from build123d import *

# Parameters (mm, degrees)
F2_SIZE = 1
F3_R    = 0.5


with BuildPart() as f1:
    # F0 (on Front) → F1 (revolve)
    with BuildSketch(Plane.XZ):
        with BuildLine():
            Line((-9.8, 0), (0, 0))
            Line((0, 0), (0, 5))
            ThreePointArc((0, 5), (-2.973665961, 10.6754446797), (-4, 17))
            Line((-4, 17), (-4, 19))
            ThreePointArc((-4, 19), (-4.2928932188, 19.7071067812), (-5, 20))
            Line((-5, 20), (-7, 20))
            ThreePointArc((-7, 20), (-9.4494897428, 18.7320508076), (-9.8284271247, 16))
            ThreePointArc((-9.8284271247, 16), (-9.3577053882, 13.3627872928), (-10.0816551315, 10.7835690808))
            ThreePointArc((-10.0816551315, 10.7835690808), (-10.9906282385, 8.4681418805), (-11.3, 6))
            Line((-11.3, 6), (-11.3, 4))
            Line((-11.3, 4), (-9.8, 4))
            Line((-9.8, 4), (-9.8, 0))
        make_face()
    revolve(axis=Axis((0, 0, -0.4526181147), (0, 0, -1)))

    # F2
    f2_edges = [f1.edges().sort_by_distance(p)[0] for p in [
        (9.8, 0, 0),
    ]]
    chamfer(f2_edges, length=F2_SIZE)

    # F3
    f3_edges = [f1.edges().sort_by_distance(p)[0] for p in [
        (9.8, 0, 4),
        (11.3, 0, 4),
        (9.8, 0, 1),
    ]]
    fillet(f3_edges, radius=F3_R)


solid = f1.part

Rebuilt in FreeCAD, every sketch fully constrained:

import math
import FreeCAD as App
import Part
import Sketcher

V = App.Vector
Q = App.Units.Quantity


def edges_at(feature, points):
    """Names of the edges that pass closest to the given points."""
    edges = feature.Shape.Edges
    near = lambda p: min(range(len(edges)), key=lambda i: edges[i].distToShape(Part.Vertex(*p))[0])
    return sorted({f"Edge{near(p) + 1}" for p in points})

doc = App.newDocument("Part")
params = doc.addObject("Spreadsheet::Sheet", "Params")
for row, (alias, value) in enumerate([
    ("sketch1_radius", "20 mm"),
    ("sketch1_radius2", "1 mm"),
    ("sketch1_radius3", "3 mm"),
    ("sketch1_radius4", "6 mm"),
    ("sketch1_radius5", "10 mm"),
    ("revolution_angle", "360 deg"),
    ("chamfer_size", "1 mm"),
    ("fillet_radius", "0.5 mm"),
], start=1):
    params.set(f"A{row}", alias)
    params.set(f"B{row}", "=" + value)
    params.setAlias(f"B{row}", alias)

body = doc.addObject("PartDesign::Body", "Body")

# Sketch on XZ plane
sketch1 = body.newObject("Sketcher::SketchObject", "Sketch")
sketch1.AttachmentSupport = (doc.getObject("XZ_Plane"), [""])
sketch1.MapMode = "FlatFace"
sketch1.addGeometry(Part.LineSegment(V(-9.8, 0, 0), V(0, 0, 0)), False)
sketch1.addGeometry(Part.LineSegment(V(0, 0, 0), V(0, 5, 0)), False)
sketch1.addGeometry(Part.ArcOfCircle(Part.Circle(V(16, 17, 0), V(0, 0, 1), 20), math.radians(180), math.radians(216.869898)), False)
sketch1.addGeometry(Part.LineSegment(V(-4, 17, 0), V(-4, 19, 0)), False)
sketch1.addGeometry(Part.ArcOfCircle(Part.Circle(V(-5, 19, 0), V(0, 0, 1), 1), math.radians(0), math.radians(90)), False)
sketch1.addGeometry(Part.LineSegment(V(-5, 20, 0), V(-7, 20, 0)), False)
sketch1.addGeometry(Part.ArcOfCircle(Part.Circle(V(-7, 17, 0), V(0, 0, 1), 3), math.radians(90), math.radians(199.471221)), False)
sketch1.addGeometry(Part.ArcOfCircle(Part.Circle(V(-15.350648, 13.653711, 0), V(0, 0, 1), 6), math.radians(-28.578144), math.radians(23.01974)), False)
sketch1.addGeometry(Part.ArcOfCircle(Part.Circle(V(-1.3, 6, 0), V(0, 0, 1), 10), math.radians(151.421856), math.radians(180)), False)
sketch1.addGeometry(Part.LineSegment(V(-11.3, 6, 0), V(-11.3, 4, 0)), False)
sketch1.addGeometry(Part.LineSegment(V(-11.3, 4, 0), V(-9.8, 4, 0)), False)
sketch1.addGeometry(Part.LineSegment(V(-9.8, 4, 0), V(-9.8, 0, 0)), False)
sketch1.addConstraint(Sketcher.Constraint("Coincident", 0, 2, 1, 1))
sketch1.addConstraint(Sketcher.Constraint("Coincident", 1, 2, 2, 2))
sketch1.addConstraint(Sketcher.Constraint("Tangent", 2, 1, 3, 1))
sketch1.addConstraint(Sketcher.Constraint("Tangent", 3, 2, 4, 1))
sketch1.addConstraint(Sketcher.Constraint("Tangent", 4, 2, 5, 1))
sketch1.addConstraint(Sketcher.Constraint("Tangent", 5, 2, 6, 1))
sketch1.addConstraint(Sketcher.Constraint("Coincident", 6, 2, 7, 2))
sketch1.addConstraint(Sketcher.Constraint("Tangent", 7, 1, 8, 1))
sketch1.addConstraint(Sketcher.Constraint("Tangent", 8, 2, 9, 1))
sketch1.addConstraint(Sketcher.Constraint("Coincident", 9, 2, 10, 1))
sketch1.addConstraint(Sketcher.Constraint("Coincident", 10, 2, 11, 1))
sketch1.addConstraint(Sketcher.Constraint("Coincident", 11, 2, 0, 1))
sketch1.addConstraint(Sketcher.Constraint("Horizontal", 0))
sketch1.addConstraint(Sketcher.Constraint("Vertical", 1))
sketch1.addConstraint(Sketcher.Constraint("Vertical", 3))
sketch1.addConstraint(Sketcher.Constraint("Horizontal", 5))
sketch1.addConstraint(Sketcher.Constraint("Vertical", 9))
sketch1.addConstraint(Sketcher.Constraint("Horizontal", 10))
sketch1.addConstraint(Sketcher.Constraint("Vertical", 11))
sketch1.addConstraint(Sketcher.Constraint("Coincident", 0, 2, -1, 1))
sketch1.addConstraint(Sketcher.Constraint("Horizontal", 2, 3, 6, 3))
sketch1.addConstraint(Sketcher.Constraint("Equal", 5, 3))
sketch1.addConstraint(Sketcher.Constraint("Equal", 3, 9))
sketch1.addConstraint(Sketcher.Constraint("Radius", 2, Q("20 mm")))
sketch1.addConstraint(Sketcher.Constraint("Radius", 4, Q("1 mm")))
sketch1.addConstraint(Sketcher.Constraint("Radius", 6, Q("3 mm")))
sketch1.addConstraint(Sketcher.Constraint("Radius", 7, Q("6 mm")))
sketch1.addConstraint(Sketcher.Constraint("Radius", 8, Q("10 mm")))
sketch1.addConstraint(Sketcher.Constraint("DistanceY", 1, 1, 1, 2, Q("5 mm")))
sketch1.addConstraint(Sketcher.Constraint("DistanceY", 11, 2, 11, 1, Q("4 mm")))
sketch1.addConstraint(Sketcher.Constraint("DistanceX", 0, 1, 0, 2, Q("9.8 mm")))
sketch1.addConstraint(Sketcher.Constraint("DistanceX", 10, 1, 10, 2, Q("1.5 mm")))
sketch1.addConstraint(Sketcher.Constraint("DistanceX", -1, 1, 2, 3, Q("16 mm")))
sketch1.addConstraint(Sketcher.Constraint("DistanceY", -1, 1, 6, 2, Q("16 mm")))
sketch1.setExpression("Constraints[23]", "Params.sketch1_radius")
sketch1.setExpression("Constraints[24]", "Params.sketch1_radius2")
sketch1.setExpression("Constraints[25]", "Params.sketch1_radius3")
sketch1.setExpression("Constraints[26]", "Params.sketch1_radius4")
sketch1.setExpression("Constraints[27]", "Params.sketch1_radius5")
revolution = body.newObject("PartDesign::Revolution", "Revolution")
revolution.Profile = sketch1
revolution.ReferenceAxis = (sketch1, ["V_Axis"])
revolution.setExpression("Angle", "Params.revolution_angle")
doc.recompute()

chamfer = body.newObject("PartDesign::Chamfer", "Chamfer")
chamfer.Base = (revolution, edges_at(revolution, [(9.8, 0, 0)]))
chamfer.setExpression("Size", "Params.chamfer_size")
doc.recompute()

fillet = body.newObject("PartDesign::Fillet", "Fillet")
fillet.Base = (chamfer, edges_at(chamfer, [(9.8, 0, 4), (11.3, 0, 4), (9.8, 0, 1)]))
fillet.setExpression("Radius", "Params.fillet_radius")

doc.recompute()
